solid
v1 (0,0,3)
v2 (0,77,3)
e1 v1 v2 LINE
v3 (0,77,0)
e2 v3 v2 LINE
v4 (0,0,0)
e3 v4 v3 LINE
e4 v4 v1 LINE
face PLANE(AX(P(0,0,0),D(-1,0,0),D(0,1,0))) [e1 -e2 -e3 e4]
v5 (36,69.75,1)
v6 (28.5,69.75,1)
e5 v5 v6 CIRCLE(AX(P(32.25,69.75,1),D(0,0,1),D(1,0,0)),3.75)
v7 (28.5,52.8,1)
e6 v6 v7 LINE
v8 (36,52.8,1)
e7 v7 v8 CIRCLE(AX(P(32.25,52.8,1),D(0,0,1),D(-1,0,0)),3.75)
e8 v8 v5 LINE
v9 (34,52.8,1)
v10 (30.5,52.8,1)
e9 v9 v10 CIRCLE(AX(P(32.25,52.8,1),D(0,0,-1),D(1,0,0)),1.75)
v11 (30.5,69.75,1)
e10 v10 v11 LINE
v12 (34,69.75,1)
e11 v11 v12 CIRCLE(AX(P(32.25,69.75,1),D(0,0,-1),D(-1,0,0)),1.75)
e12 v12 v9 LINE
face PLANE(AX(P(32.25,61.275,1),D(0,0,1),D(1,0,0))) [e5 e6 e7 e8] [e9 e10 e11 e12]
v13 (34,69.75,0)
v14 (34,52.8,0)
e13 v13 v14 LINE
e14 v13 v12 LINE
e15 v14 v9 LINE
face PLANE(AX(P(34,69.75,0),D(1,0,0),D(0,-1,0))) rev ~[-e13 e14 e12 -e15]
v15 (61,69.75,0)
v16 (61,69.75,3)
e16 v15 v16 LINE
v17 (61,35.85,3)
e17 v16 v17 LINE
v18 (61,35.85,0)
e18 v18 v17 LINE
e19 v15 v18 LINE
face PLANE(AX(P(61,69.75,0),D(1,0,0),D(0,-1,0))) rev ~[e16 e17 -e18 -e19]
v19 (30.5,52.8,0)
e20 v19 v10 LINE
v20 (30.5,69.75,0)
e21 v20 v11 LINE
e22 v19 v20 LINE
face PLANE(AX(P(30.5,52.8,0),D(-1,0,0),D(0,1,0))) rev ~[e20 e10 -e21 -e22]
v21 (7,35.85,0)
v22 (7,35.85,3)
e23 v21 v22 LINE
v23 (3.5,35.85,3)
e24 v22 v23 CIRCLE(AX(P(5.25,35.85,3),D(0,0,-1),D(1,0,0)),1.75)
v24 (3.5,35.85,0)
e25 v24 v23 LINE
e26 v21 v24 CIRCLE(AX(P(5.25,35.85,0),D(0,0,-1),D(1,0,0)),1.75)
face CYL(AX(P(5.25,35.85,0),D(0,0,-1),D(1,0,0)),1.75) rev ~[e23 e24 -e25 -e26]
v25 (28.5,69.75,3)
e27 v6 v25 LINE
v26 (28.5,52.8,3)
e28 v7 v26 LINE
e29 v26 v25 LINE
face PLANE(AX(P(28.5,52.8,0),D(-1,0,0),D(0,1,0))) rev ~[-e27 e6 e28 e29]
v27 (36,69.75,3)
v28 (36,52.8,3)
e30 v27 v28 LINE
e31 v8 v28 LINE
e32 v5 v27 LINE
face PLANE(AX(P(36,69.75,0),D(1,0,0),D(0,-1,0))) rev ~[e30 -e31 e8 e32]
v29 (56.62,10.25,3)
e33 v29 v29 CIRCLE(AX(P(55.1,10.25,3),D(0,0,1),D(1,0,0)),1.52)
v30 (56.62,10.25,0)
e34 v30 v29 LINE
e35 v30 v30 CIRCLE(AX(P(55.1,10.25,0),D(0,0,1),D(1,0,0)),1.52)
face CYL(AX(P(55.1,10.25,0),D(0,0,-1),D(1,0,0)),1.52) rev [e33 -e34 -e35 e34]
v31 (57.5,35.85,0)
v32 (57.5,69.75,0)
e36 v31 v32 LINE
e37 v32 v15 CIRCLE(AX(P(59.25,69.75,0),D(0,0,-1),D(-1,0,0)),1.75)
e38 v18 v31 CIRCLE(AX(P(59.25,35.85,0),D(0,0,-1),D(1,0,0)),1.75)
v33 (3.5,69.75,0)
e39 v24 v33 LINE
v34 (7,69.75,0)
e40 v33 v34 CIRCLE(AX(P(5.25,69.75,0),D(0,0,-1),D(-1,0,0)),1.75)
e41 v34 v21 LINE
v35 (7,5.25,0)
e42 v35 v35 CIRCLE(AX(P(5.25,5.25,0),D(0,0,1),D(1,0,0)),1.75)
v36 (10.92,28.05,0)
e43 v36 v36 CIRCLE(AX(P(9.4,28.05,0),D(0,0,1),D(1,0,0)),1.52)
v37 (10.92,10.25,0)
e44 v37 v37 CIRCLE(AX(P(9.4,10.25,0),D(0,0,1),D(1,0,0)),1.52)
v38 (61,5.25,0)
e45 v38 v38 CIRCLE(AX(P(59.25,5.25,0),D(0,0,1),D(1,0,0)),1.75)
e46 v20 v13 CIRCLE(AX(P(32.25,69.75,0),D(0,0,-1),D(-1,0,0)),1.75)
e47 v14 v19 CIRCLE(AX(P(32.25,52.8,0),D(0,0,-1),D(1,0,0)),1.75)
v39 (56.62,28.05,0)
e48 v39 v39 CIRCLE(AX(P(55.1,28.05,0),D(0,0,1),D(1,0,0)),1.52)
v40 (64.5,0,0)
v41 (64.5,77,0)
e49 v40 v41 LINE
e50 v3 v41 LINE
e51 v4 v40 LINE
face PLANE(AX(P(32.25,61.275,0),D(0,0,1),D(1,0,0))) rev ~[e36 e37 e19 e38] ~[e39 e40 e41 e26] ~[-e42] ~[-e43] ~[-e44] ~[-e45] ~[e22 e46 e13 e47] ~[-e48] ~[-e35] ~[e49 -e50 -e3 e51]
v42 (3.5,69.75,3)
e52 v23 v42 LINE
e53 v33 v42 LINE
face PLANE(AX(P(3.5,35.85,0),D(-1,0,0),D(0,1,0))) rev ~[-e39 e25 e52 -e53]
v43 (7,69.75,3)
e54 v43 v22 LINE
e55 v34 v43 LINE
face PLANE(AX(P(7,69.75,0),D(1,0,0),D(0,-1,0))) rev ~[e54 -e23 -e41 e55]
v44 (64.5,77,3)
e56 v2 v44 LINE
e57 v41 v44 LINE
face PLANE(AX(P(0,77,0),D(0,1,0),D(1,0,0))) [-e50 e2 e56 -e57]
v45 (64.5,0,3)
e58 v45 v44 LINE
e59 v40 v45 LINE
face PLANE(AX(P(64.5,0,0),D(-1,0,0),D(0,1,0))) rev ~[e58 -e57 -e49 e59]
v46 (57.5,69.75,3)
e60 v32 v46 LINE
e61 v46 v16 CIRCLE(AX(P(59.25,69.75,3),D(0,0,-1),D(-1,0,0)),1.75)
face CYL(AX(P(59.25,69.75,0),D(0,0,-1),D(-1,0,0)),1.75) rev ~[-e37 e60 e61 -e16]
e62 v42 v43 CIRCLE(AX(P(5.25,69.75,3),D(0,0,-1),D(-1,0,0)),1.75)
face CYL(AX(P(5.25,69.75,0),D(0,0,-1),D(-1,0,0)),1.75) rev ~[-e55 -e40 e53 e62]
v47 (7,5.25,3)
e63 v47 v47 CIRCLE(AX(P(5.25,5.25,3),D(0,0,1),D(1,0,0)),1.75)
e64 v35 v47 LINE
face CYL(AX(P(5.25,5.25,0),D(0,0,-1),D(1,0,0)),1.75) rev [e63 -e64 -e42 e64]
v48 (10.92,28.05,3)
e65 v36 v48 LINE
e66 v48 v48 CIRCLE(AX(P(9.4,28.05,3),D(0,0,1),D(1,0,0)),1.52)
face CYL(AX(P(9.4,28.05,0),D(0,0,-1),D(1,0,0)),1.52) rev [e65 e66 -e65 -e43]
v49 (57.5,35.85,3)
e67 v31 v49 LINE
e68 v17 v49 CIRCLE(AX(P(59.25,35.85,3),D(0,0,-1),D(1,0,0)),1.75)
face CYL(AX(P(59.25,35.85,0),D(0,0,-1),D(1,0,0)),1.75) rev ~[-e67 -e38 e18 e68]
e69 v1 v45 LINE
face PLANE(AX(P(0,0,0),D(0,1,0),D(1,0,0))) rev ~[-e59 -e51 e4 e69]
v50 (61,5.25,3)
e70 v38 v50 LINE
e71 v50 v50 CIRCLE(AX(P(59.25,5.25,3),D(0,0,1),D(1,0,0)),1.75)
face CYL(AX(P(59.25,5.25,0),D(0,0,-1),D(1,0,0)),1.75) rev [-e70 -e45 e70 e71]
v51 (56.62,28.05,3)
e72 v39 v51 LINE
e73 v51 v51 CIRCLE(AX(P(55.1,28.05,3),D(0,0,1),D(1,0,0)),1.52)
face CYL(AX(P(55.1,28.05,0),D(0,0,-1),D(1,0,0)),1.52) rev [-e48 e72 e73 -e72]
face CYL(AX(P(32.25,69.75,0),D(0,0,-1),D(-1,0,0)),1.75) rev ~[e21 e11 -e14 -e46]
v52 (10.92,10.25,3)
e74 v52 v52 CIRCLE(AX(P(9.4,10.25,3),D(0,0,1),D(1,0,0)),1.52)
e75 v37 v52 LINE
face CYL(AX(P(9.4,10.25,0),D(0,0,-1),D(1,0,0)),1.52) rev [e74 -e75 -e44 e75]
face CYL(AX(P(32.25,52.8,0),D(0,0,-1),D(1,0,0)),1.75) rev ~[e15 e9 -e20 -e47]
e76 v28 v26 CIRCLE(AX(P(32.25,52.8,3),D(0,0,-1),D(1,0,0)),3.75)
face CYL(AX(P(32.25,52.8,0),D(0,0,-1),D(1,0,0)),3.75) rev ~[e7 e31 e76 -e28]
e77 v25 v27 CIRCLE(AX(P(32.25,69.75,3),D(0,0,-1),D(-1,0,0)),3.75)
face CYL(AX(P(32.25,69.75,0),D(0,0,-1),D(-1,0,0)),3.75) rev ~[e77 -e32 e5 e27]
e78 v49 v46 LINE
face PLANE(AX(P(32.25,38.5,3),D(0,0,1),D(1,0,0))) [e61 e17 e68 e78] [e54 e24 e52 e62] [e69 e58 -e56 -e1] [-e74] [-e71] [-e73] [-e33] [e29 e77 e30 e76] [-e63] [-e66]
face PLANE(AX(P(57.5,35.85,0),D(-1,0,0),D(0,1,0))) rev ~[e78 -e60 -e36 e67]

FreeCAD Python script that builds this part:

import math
import FreeCAD as App
import Part
import Sketcher
from FreeCAD import Vector
Q = App.Units.Quantity


def add_polygon(sketch, points):
    """Adds a closed chain of lines whose ends are joined by coincident constraints."""
    first, n = sketch.GeometryCount, len(points)
    for a, b in zip(points, points[1:] + points[:1]):
        sketch.addGeometry(Part.LineSegment(App.Vector(*a, 0), App.Vector(*b, 0)), False)
    for i in range(n):
        sketch.addConstraint(Sketcher.Constraint("Coincident", first + i, 2, first + (i + 1) % n, 1))

doc = App.newDocument("Part")
body = doc.addObject("PartDesign::Body", "Body")

# Sketch on XY plane
sketch1 = body.newObject("Sketcher::SketchObject", "Sketch")
sketch1.AttachmentSupport = (doc.getObject("XY_Plane"), [""])
sketch1.MapMode = "FlatFace"
add_polygon(sketch1, [(0, 77), (0, 0), (64.5, 0), (64.5, 77)])  # lines 0-3
sketch1.addGeometry(Part.Circle(Vector(5.2, 5.2, 0), Vector(0, 0, 1), 1.8), False)  # 4
sketch1.addGeometry(Part.Circle(Vector(9.4, 10.2, 0), Vector(0, 0, 1), 1.5), False)  # 5
sketch1.addGeometry(Part.Circle(Vector(9.4, 28.1, 0), Vector(0, 0, 1), 1.5), False)  # 6
sketch1.addGeometry(Part.Circle(Vector(59.2, 5.2, 0), Vector(0, 0, 1), 1.8), False)  # 7
sketch1.addGeometry(Part.Circle(Vector(55.1, 10.2, 0), Vector(0, 0, 1), 1.5), False)  # 8
sketch1.addGeometry(Part.Circle(Vector(55.1, 28.1, 0), Vector(0, 0, 1), 1.5), False)  # 9
sketch1.addGeometry(Part.LineSegment(Vector(7, 69.8, 0), Vector(7, 35.9, 0)), False)  # 10
sketch1.addGeometry(Part.ArcOfCircle(Part.Circle(Vector(5.2, 35.9, 0), Vector(0, 0, 1), 1.8), math.radians(180), math.radians(360)), False)  # 11
sketch1.addGeometry(Part.LineSegment(Vector(3.5, 35.9, 0), Vector(3.5, 69.8, 0)), False)  # 12
sketch1.addGeometry(Part.ArcOfCircle(Part.Circle(Vector(5.2, 69.8, 0), Vector(0, 0, 1), 1.8), math.radians(0), math.radians(180)), False)  # 13
sketch1.addGeometry(Part.ArcOfCircle(Part.Circle(Vector(59.2, 69.8, 0), Vector(0, 0, 1), 1.8), math.radians(0), math.radians(180)), False)  # 14
sketch1.addGeometry(Part.LineSegment(Vector(61, 69.8, 0), Vector(61, 35.9, 0)), False)  # 15
sketch1.addGeometry(Part.ArcOfCircle(Part.Circle(Vector(59.2, 35.9, 0), Vector(0, 0, 1), 1.8), math.radians(180), math.radians(360)), False)  # 16
sketch1.addGeometry(Part.LineSegment(Vector(57.5, 35.9, 0), Vector(57.5, 69.8, 0)), False)  # 17
sketch1.addGeometry(Part.ArcOfCircle(Part.Circle(Vector(32.2, 69.8, 0), Vector(0, 0, 1), 3.8), math.radians(0), math.radians(180)), False)  # 18
sketch1.addGeometry(Part.LineSegment(Vector(36, 69.8, 0), Vector(36, 52.8, 0)), False)  # 19
sketch1.addGeometry(Part.ArcOfCircle(Part.Circle(Vector(32.2, 52.8, 0), Vector(0, 0, 1), 3.8), math.radians(180), math.radians(360)), False)  # 20
sketch1.addGeometry(Part.LineSegment(Vector(28.5, 52.8, 0), Vector(28.5, 69.8, 0)), False)  # 21
sketch1.addConstraint(Sketcher.Constraint("Tangent", 10, 2, 11, 2))
sketch1.addConstraint(Sketcher.Constraint("Tangent", 11, 1, 12, 1))
sketch1.addConstraint(Sketcher.Constraint("Tangent", 12, 2, 13, 2))
sketch1.addConstraint(Sketcher.Constraint("Tangent", 13, 1, 10, 1))
sketch1.addConstraint(Sketcher.Constraint("Tangent", 14, 1, 15, 1))
sketch1.addConstraint(Sketcher.Constraint("Tangent", 15, 2, 16, 2))
sketch1.addConstraint(Sketcher.Constraint("Tangent", 16, 1, 17, 1))
sketch1.addConstraint(Sketcher.Constraint("Tangent", 17, 2, 14, 2))
sketch1.addConstraint(Sketcher.Constraint("Tangent", 18, 1, 19, 1))
sketch1.addConstraint(Sketcher.Constraint("Tangent", 19, 2, 20, 2))
sketch1.addConstraint(Sketcher.Constraint("Tangent", 20, 1, 21, 1))
sketch1.addConstraint(Sketcher.Constraint("Tangent", 21, 2, 18, 2))
sketch1.addConstraint(Sketcher.Constraint("Vertical", 0))
sketch1.addConstraint(Sketcher.Constraint("Horizontal", 1))
sketch1.addConstraint(Sketcher.Constraint("Vertical", 2))
sketch1.addConstraint(Sketcher.Constraint("Horizontal", 3))
sketch1.addConstraint(Sketcher.Constraint("Vertical", 10))
sketch1.addConstraint(Sketcher.Constraint("Vertical", 12))
sketch1.addConstraint(Sketcher.Constraint("Vertical", 15))
sketch1.addConstraint(Sketcher.Constraint("Vertical", 17))
sketch1.addConstraint(Sketcher.Constraint("Vertical", 19))
sketch1.addConstraint(Sketcher.Constraint("Vertical", 21))
sketch1.addConstraint(Sketcher.Constraint("Coincident", 0, 2, -1, 1))
sketch1.addConstraint(Sketcher.Constraint("Equal", 5, 6))
sketch1.addConstraint(Sketcher.Constraint("Equal", 4, 7))
sketch1.addConstraint(Sketcher.Constraint("Equal", 6, 8))
sketch1.addConstraint(Sketcher.Constraint("Equal", 8, 9))
sketch1.addConstraint(Sketcher.Constraint("Equal", 7, 11))
sketch1.addConstraint(Sketcher.Constraint("Equal", 13, 14))
sketch1.addConstraint(Sketcher.Constraint("Horizontal", 4, 3, 7, 3))
sketch1.addConstraint(Sketcher.Constraint("Horizontal", 5, 3, 8, 3))
sketch1.addConstraint(Sketcher.Constraint("Horizontal", 6, 3, 9, 3))
sketch1.addConstraint(Sketcher.Constraint("Horizontal", 13, 3, 14, 3))
sketch1.addConstraint(Sketcher.Constraint("Horizontal", 11, 3, 16, 3))
sketch1.addConstraint(Sketcher.Constraint("Horizontal", 14, 3, 18, 3))
sketch1.addConstraint(Sketcher.Constraint("Vertical", 5, 3, 6, 3))
sketch1.addConstraint(Sketcher.Constraint("Vertical", 8, 3, 9, 3))
sketch1.addConstraint(Sketcher.Constraint("Vertical", 4, 3, 11, 3))
sketch1.addConstraint(Sketcher.Constraint("Vertical", 7, 3, 14, 3))
sketch1.addConstraint(Sketcher.Constraint("Diameter", 4, Q("3.5 mm")))
sketch1.addConstraint(Sketcher.Constraint("Diameter", 5, Q("3.04 mm")))
sketch1.addConstraint(Sketcher.Constraint("DistanceY", 0, 2, 0, 1, Q("77 mm")))
sketch1.addConstraint(Sketcher.Constraint("Radius", 18, Q("3.75 mm")))
sketch1.addConstraint(Sketcher.Constraint("DistanceX", 1, 1, 1, 2, Q("64.5 mm")))
sketch1.addConstraint(Sketcher.Constraint("DistanceY", 10, 2, 10, 1, Q("33.9 mm")))
sketch1.addConstraint(Sketcher.Constraint("DistanceX", -1, 1, 10, 2, Q("7 mm")))
sketch1.addConstraint(Sketcher.Constraint("DistanceX", -1, 1, 14, 1, Q("61 mm")))
sketch1.addConstraint(Sketcher.Constraint("DistanceX", -1, 1, 18, 1, Q("36 mm")))
sketch1.addConstraint(Sketcher.Constraint("DistanceY", 4, 3, 5, 3, Q("5 mm")))
sketch1.addConstraint(Sketcher.Constraint("DistanceY", 19, 2, 19, 1, Q("16.95 mm")))
sketch1.addConstraint(Sketcher.Constraint("DistanceX", -1, 1, 5, 3, Q("9.4 mm")))
sketch1.addConstraint(Sketcher.Constraint("DistanceX", -1, 1, 8, 3, Q("55.1 mm")))
sketch1.addConstraint(Sketcher.Constraint("DistanceY", -1, 1, 20, 3, Q("52.8 mm")))
sketch1.addConstraint(Sketcher.Constraint("DistanceY", 5, 3, 6, 3, Q("17.8 mm")))
sketch1.addConstraint(Sketcher.Constraint("DistanceY", 6, 3, 11, 3, Q("7.8 mm")))
pad1 = body.newObject("PartDesign::Pad", "Pad")
pad1.Profile = sketch1
pad1.Length = 3

# Sketch on XY plane
sketch2 = body.newObject("Sketcher::SketchObject", "Sketch001")
sketch2.AttachmentSupport = (doc.getObject("XY_Plane"), [""])
sketch2.MapMode = "FlatFace"
sketch2.addGeometry(Part.ArcOfCircle(Part.Circle(Vector(32.2, 52.8, 0), Vector(0, 0, 1), 3.8), math.radians(180), math.radians(360)), False)
sketch2.addGeometry(Part.LineSegment(Vector(36, 52.8, 0), Vector(36, 69.8, 0)), False)
sketch2.addGeometry(Part.ArcOfCircle(Part.Circle(Vector(32.2, 69.8, 0), Vector(0, 0, 1), 3.8), math.radians(0), math.radians(180)), False)
sketch2.addGeometry(Part.LineSegment(Vector(28.5, 69.8, 0), Vector(28.5, 52.8, 0)), False)
sketch2.addGeometry(Part.LineSegment(Vector(30.5, 52.8, 0), Vector(30.5, 69.8, 0)), False)
sketch2.addGeometry(Part.ArcOfCircle(Part.Circle(Vector(32.2, 69.8, 0), Vector(0, 0, 1), 1.8), math.radians(0), math.radians(180)), False)
sketch2.addGeometry(Part.LineSegment(Vector(34, 69.8, 0), Vector(34, 52.8, 0)), False)
sketch2.addGeometry(Part.ArcOfCircle(Part.Circle(Vector(32.2, 52.8, 0), Vector(0, 0, 1), 1.8), math.radians(180), math.radians(360)), False)
sketch2.addConstraint(Sketcher.Constraint("Tangent", 0, 2, 1, 1))
sketch2.addConstraint(Sketcher.Constraint("Tangent", 1, 2, 2, 1))
sketch2.addConstraint(Sketcher.Constraint("Tangent", 2, 2, 3, 1))
sketch2.addConstraint(Sketcher.Constraint("Tangent", 3, 2, 0, 1))
sketch2.addConstraint(Sketcher.Constraint("Tangent", 4, 2, 5, 2))
sketch2.addConstraint(Sketcher.Constraint("Tangent", 5, 1, 6, 1))
sketch2.addConstraint(Sketcher.Constraint("Tangent", 6, 2, 7, 2))
sketch2.addConstraint(Sketcher.Constraint("Tangent", 7, 1, 4, 1))
sketch2.addConstraint(Sketcher.Constraint("Vertical", 1))
sketch2.addConstraint(Sketcher.Constraint("Vertical", 3))
sketch2.addConstraint(Sketcher.Constraint("Vertical", 4))
sketch2.addConstraint(Sketcher.Constraint("Vertical", 6))
sketch2.addConstraint(Sketcher.Constraint("Coincident", 5, 3, 2, 3))
sketch2.addConstraint(Sketcher.Constraint("Horizontal", 7, 3, 0, 2))
sketch2.addConstraint(Sketcher.Constraint("Radius", 0, Q("3.75 mm")))
sketch2.addConstraint(Sketcher.Constraint("Radius", 5, Q("1.75 mm")))
sketch2.addConstraint(Sketcher.Constraint("DistanceX", -1, 1, 0, 2, Q("36 mm")))
sketch2.addConstraint(Sketcher.Constraint("DistanceY", 1, 1, 1, 2, Q("16.95 mm")))
sketch2.addConstraint(Sketcher.Constraint("DistanceY", -1, 1, 0, 3, Q("52.8 mm")))
pad2 = body.newObject("PartDesign::Pad", "Pad001")
pad2.Profile = sketch2
pad2.Length = 1

doc.recompute()
